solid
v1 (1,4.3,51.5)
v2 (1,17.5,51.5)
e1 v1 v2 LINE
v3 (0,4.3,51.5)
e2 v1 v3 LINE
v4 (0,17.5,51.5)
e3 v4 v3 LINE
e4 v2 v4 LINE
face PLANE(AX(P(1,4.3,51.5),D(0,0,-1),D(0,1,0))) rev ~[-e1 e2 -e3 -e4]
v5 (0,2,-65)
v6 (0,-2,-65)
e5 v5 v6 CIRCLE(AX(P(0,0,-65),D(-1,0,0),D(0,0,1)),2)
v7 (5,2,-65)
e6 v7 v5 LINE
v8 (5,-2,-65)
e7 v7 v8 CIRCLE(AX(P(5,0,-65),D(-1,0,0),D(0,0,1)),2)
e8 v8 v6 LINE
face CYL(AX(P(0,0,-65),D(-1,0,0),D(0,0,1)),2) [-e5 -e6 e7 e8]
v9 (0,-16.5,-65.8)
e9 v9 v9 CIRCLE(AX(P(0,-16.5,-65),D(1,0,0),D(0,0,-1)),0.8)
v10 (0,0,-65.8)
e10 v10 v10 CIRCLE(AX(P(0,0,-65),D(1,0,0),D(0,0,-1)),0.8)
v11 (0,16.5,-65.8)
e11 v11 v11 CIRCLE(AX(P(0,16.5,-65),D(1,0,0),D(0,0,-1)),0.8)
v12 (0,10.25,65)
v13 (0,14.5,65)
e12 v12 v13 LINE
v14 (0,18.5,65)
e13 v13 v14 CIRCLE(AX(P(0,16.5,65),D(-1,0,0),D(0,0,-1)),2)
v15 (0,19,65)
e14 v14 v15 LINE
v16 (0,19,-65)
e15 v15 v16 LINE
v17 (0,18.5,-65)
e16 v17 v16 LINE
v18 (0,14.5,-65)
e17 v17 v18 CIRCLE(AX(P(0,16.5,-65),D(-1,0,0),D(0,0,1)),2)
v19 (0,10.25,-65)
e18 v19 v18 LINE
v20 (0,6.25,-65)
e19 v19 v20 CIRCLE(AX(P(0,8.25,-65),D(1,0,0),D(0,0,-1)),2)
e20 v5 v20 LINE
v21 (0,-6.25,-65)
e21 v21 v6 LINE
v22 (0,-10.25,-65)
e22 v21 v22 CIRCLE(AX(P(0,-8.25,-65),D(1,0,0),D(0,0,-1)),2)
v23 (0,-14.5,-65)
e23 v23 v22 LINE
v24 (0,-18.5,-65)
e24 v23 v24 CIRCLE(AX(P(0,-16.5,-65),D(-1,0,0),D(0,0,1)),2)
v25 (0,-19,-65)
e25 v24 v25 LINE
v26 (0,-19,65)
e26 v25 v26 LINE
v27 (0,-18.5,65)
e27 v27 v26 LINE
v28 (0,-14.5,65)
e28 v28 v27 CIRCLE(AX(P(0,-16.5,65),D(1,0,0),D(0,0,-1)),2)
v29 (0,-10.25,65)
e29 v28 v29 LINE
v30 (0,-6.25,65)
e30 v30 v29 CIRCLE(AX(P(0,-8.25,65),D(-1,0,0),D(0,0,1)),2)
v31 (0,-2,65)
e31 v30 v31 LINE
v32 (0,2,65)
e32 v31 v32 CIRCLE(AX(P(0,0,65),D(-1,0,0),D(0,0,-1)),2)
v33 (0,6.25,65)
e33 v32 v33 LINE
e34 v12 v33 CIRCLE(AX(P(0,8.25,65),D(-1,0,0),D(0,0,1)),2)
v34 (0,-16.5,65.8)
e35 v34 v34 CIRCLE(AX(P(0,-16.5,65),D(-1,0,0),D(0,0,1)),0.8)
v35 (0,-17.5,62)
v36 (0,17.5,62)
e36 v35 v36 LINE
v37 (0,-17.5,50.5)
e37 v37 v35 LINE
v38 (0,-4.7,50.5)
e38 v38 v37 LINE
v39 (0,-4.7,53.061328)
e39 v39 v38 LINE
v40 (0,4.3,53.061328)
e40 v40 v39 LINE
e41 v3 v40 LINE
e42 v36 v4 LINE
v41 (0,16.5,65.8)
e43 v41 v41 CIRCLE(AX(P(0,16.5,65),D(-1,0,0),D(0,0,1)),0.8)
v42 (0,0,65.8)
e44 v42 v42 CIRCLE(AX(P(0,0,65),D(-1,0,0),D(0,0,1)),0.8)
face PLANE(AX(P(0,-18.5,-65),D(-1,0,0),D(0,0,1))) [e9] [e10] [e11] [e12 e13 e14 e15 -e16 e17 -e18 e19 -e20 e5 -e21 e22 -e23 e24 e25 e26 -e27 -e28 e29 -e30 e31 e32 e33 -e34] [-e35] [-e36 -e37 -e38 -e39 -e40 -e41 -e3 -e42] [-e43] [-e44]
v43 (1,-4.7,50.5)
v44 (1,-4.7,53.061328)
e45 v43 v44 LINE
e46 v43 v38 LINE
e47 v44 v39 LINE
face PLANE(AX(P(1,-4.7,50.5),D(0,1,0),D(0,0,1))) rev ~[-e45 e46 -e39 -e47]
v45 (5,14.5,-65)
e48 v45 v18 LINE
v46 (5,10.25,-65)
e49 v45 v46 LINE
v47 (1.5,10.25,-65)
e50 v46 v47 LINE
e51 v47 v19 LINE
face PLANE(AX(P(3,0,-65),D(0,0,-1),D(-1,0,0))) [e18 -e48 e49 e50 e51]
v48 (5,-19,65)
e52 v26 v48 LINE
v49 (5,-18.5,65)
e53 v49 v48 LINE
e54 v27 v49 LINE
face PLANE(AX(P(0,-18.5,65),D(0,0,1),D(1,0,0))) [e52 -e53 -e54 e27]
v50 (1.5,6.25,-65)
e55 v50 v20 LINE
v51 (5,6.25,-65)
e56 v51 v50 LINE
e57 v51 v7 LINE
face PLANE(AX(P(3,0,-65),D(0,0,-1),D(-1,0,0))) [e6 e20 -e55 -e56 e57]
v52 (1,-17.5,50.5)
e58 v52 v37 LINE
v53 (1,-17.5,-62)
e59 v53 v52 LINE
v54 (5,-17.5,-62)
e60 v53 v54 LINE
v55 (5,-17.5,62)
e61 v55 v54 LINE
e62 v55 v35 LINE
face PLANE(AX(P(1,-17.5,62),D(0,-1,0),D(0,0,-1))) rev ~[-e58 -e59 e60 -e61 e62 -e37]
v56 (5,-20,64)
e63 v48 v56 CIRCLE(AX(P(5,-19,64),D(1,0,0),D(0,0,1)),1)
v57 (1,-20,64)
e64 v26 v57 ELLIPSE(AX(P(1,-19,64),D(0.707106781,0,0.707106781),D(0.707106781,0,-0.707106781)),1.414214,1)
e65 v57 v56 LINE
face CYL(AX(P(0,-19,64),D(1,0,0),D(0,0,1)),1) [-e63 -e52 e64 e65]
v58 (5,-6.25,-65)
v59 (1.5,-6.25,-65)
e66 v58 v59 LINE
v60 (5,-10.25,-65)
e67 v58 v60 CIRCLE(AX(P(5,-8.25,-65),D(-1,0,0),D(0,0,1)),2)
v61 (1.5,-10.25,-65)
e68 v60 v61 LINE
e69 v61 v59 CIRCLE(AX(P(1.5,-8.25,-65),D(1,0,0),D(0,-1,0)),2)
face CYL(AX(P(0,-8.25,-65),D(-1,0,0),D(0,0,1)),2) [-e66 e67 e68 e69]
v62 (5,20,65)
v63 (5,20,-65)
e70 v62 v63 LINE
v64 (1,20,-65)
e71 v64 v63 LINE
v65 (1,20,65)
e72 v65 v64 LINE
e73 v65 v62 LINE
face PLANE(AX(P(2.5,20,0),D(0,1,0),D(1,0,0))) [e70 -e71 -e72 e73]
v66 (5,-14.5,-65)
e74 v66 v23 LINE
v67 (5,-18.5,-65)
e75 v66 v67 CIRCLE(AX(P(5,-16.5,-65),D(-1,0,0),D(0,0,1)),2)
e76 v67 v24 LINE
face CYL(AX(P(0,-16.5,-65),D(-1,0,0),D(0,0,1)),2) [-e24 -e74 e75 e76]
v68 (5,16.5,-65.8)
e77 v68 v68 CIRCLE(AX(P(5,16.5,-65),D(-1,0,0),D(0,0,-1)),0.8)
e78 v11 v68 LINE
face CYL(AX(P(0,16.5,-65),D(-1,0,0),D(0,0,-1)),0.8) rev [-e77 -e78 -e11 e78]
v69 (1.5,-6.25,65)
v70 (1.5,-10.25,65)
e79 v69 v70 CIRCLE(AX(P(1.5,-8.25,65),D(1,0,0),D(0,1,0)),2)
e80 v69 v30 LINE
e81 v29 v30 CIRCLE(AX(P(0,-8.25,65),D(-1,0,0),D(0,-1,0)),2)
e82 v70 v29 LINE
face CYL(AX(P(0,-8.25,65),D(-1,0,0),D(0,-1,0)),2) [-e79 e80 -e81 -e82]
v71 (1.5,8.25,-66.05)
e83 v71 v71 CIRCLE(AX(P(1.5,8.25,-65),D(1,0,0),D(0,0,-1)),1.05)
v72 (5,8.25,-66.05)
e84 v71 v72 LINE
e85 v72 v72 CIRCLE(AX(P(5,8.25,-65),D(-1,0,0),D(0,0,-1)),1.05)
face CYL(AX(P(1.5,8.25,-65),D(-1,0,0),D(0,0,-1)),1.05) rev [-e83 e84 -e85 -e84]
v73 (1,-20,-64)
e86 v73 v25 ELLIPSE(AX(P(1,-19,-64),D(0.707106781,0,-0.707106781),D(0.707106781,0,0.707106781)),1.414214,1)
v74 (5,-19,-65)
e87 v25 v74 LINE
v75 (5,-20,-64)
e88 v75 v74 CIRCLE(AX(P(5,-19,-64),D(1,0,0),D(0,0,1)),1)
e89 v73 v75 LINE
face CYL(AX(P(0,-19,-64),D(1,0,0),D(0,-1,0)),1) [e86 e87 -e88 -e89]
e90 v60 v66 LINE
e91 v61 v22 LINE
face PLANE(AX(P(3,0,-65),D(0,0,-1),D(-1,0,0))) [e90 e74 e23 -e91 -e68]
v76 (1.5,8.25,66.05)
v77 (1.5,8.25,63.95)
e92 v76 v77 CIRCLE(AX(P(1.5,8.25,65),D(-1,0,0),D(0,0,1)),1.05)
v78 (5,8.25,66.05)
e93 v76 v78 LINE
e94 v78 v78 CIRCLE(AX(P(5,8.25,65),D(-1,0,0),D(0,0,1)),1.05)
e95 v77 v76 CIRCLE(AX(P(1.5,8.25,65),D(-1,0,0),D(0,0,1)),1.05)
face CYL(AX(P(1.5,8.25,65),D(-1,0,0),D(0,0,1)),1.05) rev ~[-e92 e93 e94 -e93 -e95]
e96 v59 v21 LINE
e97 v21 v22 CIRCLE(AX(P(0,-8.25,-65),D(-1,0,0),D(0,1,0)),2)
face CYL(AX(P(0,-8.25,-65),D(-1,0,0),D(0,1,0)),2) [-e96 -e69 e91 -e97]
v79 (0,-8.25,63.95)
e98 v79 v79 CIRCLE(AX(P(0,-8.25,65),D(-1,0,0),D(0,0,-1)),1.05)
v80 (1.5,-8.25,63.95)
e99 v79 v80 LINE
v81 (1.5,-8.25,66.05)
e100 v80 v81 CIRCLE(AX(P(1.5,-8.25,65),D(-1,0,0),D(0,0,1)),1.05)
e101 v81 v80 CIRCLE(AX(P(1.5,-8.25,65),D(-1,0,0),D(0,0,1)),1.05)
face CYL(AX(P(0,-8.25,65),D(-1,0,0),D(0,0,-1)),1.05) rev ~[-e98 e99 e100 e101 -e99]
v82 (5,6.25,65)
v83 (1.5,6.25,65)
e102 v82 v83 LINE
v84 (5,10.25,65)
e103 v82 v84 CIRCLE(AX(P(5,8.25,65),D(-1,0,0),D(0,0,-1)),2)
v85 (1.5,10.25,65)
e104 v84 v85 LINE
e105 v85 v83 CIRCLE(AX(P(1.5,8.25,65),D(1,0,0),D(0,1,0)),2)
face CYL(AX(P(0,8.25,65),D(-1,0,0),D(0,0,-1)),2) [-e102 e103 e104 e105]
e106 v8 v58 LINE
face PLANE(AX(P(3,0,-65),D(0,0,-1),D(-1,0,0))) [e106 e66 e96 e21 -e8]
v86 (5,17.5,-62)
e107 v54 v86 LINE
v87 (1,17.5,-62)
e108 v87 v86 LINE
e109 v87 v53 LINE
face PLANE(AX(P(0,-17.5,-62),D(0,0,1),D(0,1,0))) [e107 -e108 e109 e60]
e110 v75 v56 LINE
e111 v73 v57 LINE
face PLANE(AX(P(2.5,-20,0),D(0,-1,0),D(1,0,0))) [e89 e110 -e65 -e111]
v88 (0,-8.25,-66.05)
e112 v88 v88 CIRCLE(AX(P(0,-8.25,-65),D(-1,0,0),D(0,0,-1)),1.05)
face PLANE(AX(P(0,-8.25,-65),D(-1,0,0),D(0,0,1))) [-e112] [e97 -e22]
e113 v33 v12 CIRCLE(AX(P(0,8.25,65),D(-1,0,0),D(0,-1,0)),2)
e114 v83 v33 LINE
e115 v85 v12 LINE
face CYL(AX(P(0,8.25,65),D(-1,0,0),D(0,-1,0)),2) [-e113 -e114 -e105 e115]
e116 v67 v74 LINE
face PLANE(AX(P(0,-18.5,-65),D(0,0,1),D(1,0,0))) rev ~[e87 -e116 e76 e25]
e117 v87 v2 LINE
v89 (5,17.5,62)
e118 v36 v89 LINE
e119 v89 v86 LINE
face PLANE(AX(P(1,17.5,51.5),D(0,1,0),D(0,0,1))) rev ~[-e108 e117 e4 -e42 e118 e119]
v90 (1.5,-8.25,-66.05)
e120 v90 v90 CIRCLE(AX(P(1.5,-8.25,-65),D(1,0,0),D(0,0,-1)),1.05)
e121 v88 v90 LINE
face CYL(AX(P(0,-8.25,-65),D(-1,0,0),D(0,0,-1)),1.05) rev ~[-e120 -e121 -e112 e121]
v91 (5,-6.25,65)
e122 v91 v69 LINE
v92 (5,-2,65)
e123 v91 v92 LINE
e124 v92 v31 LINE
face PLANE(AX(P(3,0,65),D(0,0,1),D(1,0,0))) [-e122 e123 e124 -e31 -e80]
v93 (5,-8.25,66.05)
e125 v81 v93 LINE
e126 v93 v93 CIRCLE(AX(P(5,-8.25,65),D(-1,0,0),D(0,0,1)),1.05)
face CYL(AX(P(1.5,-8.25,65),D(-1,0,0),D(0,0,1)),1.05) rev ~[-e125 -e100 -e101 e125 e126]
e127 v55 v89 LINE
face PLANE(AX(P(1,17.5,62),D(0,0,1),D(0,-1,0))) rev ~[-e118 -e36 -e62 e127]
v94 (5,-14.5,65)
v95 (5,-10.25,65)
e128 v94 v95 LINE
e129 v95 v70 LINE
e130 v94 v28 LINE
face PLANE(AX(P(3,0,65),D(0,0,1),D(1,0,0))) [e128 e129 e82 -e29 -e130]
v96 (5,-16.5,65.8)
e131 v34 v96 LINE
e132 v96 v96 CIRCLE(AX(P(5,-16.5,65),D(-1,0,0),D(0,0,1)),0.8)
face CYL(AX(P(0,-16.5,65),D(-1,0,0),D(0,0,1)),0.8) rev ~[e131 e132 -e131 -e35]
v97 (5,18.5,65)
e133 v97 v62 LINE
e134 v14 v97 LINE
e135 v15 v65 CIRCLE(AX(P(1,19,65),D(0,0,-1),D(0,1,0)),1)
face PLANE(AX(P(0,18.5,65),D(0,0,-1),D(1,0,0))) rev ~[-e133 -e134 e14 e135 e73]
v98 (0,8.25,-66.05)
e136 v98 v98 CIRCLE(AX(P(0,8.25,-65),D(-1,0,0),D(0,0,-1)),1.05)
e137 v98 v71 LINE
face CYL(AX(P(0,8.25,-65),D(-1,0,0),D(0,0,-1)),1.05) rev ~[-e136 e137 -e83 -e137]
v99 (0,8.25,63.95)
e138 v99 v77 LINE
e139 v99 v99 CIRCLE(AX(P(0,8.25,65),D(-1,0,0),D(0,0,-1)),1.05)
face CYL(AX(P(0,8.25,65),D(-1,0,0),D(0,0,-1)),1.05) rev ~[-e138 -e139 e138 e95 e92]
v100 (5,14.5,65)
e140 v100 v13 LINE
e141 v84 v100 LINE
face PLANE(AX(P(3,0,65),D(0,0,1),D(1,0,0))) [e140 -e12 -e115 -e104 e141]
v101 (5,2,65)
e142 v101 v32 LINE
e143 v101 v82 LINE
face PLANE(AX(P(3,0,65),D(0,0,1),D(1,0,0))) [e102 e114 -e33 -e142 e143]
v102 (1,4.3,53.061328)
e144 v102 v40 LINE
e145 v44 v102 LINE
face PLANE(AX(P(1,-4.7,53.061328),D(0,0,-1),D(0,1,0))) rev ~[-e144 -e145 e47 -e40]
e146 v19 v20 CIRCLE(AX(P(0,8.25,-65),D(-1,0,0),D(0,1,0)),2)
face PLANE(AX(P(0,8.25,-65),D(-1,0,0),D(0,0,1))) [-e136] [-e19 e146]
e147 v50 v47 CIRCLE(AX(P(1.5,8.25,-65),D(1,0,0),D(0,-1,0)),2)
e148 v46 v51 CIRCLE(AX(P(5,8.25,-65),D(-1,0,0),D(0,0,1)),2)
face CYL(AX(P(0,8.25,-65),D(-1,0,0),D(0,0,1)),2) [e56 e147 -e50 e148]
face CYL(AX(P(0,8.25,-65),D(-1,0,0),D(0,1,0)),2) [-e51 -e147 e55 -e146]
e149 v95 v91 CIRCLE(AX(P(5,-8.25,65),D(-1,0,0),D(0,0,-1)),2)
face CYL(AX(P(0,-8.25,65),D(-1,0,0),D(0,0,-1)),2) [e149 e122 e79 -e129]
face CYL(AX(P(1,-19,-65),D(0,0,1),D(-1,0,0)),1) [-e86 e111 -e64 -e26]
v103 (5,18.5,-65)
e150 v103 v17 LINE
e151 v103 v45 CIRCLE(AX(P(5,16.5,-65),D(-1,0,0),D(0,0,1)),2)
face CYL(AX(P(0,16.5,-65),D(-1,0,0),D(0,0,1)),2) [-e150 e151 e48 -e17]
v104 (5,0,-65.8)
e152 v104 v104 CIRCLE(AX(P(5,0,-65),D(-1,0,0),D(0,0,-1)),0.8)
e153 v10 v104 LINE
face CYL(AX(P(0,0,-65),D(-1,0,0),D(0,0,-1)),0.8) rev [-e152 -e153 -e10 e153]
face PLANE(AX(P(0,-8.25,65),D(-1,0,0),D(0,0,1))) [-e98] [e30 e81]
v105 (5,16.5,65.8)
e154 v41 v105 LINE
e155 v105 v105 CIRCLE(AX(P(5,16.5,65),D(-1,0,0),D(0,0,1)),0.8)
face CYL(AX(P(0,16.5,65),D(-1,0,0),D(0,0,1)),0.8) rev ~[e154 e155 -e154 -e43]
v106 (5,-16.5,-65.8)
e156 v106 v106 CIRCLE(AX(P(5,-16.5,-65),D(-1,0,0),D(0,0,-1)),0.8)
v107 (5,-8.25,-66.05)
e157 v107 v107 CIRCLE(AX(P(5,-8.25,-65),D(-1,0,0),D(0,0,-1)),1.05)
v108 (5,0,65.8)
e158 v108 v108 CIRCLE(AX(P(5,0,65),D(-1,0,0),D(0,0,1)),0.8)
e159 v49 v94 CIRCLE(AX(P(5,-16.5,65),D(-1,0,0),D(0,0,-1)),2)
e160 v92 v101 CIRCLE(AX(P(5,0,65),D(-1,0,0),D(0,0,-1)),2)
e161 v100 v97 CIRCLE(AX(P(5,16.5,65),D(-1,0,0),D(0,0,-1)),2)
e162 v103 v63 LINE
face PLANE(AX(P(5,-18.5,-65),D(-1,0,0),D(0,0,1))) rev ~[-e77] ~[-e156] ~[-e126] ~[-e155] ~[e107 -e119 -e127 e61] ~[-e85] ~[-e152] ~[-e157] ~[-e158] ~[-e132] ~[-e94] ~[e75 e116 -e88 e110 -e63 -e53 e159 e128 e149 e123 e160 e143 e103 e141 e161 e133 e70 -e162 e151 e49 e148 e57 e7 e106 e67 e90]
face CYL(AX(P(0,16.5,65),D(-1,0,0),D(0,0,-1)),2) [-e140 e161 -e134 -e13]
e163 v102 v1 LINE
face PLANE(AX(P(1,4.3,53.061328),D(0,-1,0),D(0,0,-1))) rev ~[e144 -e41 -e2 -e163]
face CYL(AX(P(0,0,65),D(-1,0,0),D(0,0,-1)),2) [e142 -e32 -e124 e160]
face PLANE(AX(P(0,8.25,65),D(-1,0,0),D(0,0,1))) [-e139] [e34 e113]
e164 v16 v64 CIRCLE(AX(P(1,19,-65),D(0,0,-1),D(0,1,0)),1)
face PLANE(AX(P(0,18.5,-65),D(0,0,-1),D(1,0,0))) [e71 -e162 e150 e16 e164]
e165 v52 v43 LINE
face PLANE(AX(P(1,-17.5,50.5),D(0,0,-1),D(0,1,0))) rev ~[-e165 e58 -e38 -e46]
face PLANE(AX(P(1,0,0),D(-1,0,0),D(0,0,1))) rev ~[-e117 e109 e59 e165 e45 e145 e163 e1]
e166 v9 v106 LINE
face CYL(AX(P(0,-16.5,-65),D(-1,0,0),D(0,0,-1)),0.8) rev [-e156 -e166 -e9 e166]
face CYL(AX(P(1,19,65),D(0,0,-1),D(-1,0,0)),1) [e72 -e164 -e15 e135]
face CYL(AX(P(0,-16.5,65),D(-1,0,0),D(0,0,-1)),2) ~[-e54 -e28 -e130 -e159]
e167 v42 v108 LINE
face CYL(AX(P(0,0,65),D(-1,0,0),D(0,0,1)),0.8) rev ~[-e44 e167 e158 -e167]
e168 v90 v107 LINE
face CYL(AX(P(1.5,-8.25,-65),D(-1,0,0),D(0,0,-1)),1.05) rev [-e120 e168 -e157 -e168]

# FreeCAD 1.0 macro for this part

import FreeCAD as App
import Part
import Sketcher

V = App.Vector


def edges_at(feature, points):
    """Names of the edges that pass closest to the given points."""
    edges = feature.Shape.Edges
    near = lambda p: min(range(len(edges)), key=lambda i: edges[i].distToShape(Part.Vertex(*p))[0])
    return sorted({f"Edge{near(p) + 1}" for p in points})

doc = App.newDocument("Part")
body = doc.addObject("PartDesign::Body", "Body")

sketch1 = body.newObject("Sketcher::SketchObject", "Sketch")
sketch1.AttachmentSupport = (doc.getObject("YZ_Plane"), [""])
sketch1.MapMode = "FlatFace"
sketch1.addGeometry(Part.LineSegment(V(18, 63, 0), V(-18, 63, 0)), False)
sketch1.addGeometry(Part.LineSegment(V(-18, 63, 0), V(-18, -63, 0)), False)
sketch1.addGeometry(Part.LineSegment(V(-18, -63, 0), V(18, -63, 0)), False)
sketch1.addGeometry(Part.LineSegment(V(18, -63, 0), V(18, 63, 0)), False)
sketch1.addGeometry(Part.LineSegment(V(-18, -62, 0), V(-18, 62, 0)), False)
sketch1.addGeometry(Part.LineSegment(V(-18, 62, 0), V(18, 62, 0)), False)
sketch1.addGeometry(Part.LineSegment(V(18, 62, 0), V(18, -62, 0)), False)
sketch1.addGeometry(Part.LineSegment(V(18, -62, 0), V(-18, -62, 0)), False)
sketch1.addConstraint(Sketcher.Constraint("Coincident", 0, 2, 1, 1))
sketch1.addConstraint(Sketcher.Constraint("Coincident", 1, 2, 2, 1))
sketch1.addConstraint(Sketcher.Constraint("Coincident", 2, 2, 3, 1))
sketch1.addConstraint(Sketcher.Constraint("Coincident", 3, 2, 0, 1))
sketch1.addConstraint(Sketcher.Constraint("Coincident", 4, 2, 5, 1))
sketch1.addConstraint(Sketcher.Constraint("Coincident", 5, 2, 6, 1))
sketch1.addConstraint(Sketcher.Constraint("Coincident", 6, 2, 7, 1))
sketch1.addConstraint(Sketcher.Constraint("Coincident", 7, 2, 4, 1))
sketch1.addConstraint(Sketcher.Constraint("Horizontal", 0))
sketch1.addConstraint(Sketcher.Constraint("Vertical", 1))
sketch1.addConstraint(Sketcher.Constraint("Horizontal", 2))
sketch1.addConstraint(Sketcher.Constraint("Vertical", 3))
sketch1.addConstraint(Sketcher.Constraint("Vertical", 4))
sketch1.addConstraint(Sketcher.Constraint("Horizontal", 5))
sketch1.addConstraint(Sketcher.Constraint("Vertical", 6))
sketch1.addConstraint(Sketcher.Constraint("Horizontal", 7))
sketch1.addConstraint(Sketcher.Constraint("Symmetric", 0, 2, 2, 2, -1, 1))
sketch1.addConstraint(Sketcher.Constraint("Symmetric", 4, 2, 6, 2, -1, 1))
sketch1.addConstraint(Sketcher.Constraint("DistanceX", 0, 2, 0, 1, 37.0))
sketch1.addConstraint(Sketcher.Constraint("DistanceX", 5, 1, 5, 2, 35.0))
sketch1.addConstraint(Sketcher.Constraint("DistanceY", 1, 2, 1, 1, 126.0))
sketch1.addConstraint(Sketcher.Constraint("DistanceY", 4, 1, 4, 2, 124.0))
pad1 = body.newObject("PartDesign::Pad", "Pad")
pad1.Profile = sketch1
pad1.Length = 6

sketch2 = body.newObject("Sketcher::SketchObject", "Sketch001")
sketch2.AttachmentSupport = (doc.getObject("YZ_Plane"), [""])
sketch2.MapMode = "FlatFace"
sketch2.addGeometry(Part.LineSegment(V(18, -63, 0), V(-18, -63, 0)), False)
sketch2.addGeometry(Part.LineSegment(V(-18, -63, 0), V(-18, 63, 0)), False)
sketch2.addGeometry(Part.LineSegment(V(-18, 63, 0), V(18, 63, 0)), False)
sketch2.addGeometry(Part.LineSegment(V(18, 63, 0), V(18, -63, 0)), False)
sketch2.addConstraint(Sketcher.Constraint("Coincident", 0, 2, 1, 1))
sketch2.addConstraint(Sketcher.Constraint("Coincident", 1, 2, 2, 1))
sketch2.addConstraint(Sketcher.Constraint("Coincident", 2, 2, 3, 1))
sketch2.addConstraint(Sketcher.Constraint("Coincident", 3, 2, 0, 1))
sketch2.addConstraint(Sketcher.Constraint("Horizontal", 0))
sketch2.addConstraint(Sketcher.Constraint("Vertical", 1))
sketch2.addConstraint(Sketcher.Constraint("Horizontal", 2))
sketch2.addConstraint(Sketcher.Constraint("Vertical", 3))
sketch2.addConstraint(Sketcher.Constraint("Symmetric", 0, 2, 2, 2, -1, 1))
sketch2.addConstraint(Sketcher.Constraint("DistanceX", 0, 2, 0, 1, 37.0))
sketch2.addConstraint(Sketcher.Constraint("DistanceY", 1, 1, 1, 2, 126.0))
pad2 = body.newObject("PartDesign::Pad", "Pad001")
pad2.Profile = sketch2
pad2.Length = 1

sketch3 = body.newObject("Sketcher::SketchObject", "Sketch002")
sketch3.AttachmentSupport = (doc.getObject("XY_Plane"), [""])
sketch3.MapMode = "FlatFace"
sketch3.AttachmentOffset = App.Placement(V(0, 0, -63), App.Rotation())
sketch3.addGeometry(Part.LineSegment(V(6, 18, 0), V(6, -18, 0)), False)
sketch3.addGeometry(Part.LineSegment(V(6, -18, 0), V(0, -18, 0)), False)
sketch3.addGeometry(Part.LineSegment(V(0, -18, 0), V(0, 18, 0)), False)
sketch3.addGeometry(Part.LineSegment(V(0, 18, 0), V(6, 18, 0)), False)
sketch3.addConstraint(Sketcher.Constraint("Coincident", 0, 2, 1, 1))
sketch3.addConstraint(Sketcher.Constraint("Coincident", 1, 2, 2, 1))
sketch3.addConstraint(Sketcher.Constraint("Coincident", 2, 2, 3, 1))
sketch3.addConstraint(Sketcher.Constraint("Coincident", 3, 2, 0, 1))
sketch3.addConstraint(Sketcher.Constraint("Vertical", 0))
sketch3.addConstraint(Sketcher.Constraint("Horizontal", 1))
sketch3.addConstraint(Sketcher.Constraint("Vertical", 2))
sketch3.addConstraint(Sketcher.Constraint("Horizontal", 3))
sketch3.addConstraint(Sketcher.Constraint("Symmetric", 1, 2, 2, 2, -1, 1))
sketch3.addConstraint(Sketcher.Constraint("DistanceX", 1, 2, 1, 1, 6.0))
sketch3.addConstraint(Sketcher.Constraint("DistanceY", 0, 2, 0, 1, 37.0))
pad3 = body.newObject("PartDesign::Pad", "Pad002")
pad3.Profile = sketch3
pad3.Length = 2
pad3.Reversed = True

sketch4 = body.newObject("Sketcher::SketchObject", "Sketch003")
sketch4.AttachmentSupport = (doc.getObject("XY_Plane"), [""])
sketch4.MapMode = "FlatFace"
sketch4.AttachmentOffset = App.Placement(V(0, 0, 63), App.Rotation())
sketch4.addGeometry(Part.LineSegment(V(0, 18, 0), V(0, -18, 0)), False)
sketch4.addGeometry(Part.LineSegment(V(0, -18, 0), V(6, -18, 0)), False)
sketch4.addGeometry(Part.LineSegment(V(6, -18, 0), V(6, 18, 0)), False)
sketch4.addGeometry(Part.LineSegment(V(6, 18, 0), V(0, 18, 0)), False)
sketch4.addConstraint(Sketcher.Constraint("Coincident", 0, 2, 1, 1))
sketch4.addConstraint(Sketcher.Constraint("Coincident", 1, 2, 2, 1))
sketch4.addConstraint(Sketcher.Constraint("Coincident", 2, 2, 3, 1))
sketch4.addConstraint(Sketcher.Constraint("Coincident", 3, 2, 0, 1))
sketch4.addConstraint(Sketcher.Constraint("Vertical", 0))
sketch4.addConstraint(Sketcher.Constraint("Horizontal", 1))
sketch4.addConstraint(Sketcher.Constraint("Vertical", 2))
sketch4.addConstraint(Sketcher.Constraint("Horizontal", 3))
sketch4.addConstraint(Sketcher.Constraint("Symmetric", 0, 2, 3, 2, -1, 1))
sketch4.addConstraint(Sketcher.Constraint("DistanceX", 1, 1, 1, 2, 6.0))
sketch4.addConstraint(Sketcher.Constraint("DistanceY", 0, 2, 0, 1, 37.0))
pad4 = body.newObject("PartDesign::Pad", "Pad003")
pad4.Profile = sketch4
pad4.Length = 2

sketch5 = body.newObject("Sketcher::SketchObject", "Sketch004")
sketch5.AttachmentSupport = (doc.getObject("YZ_Plane"), [""])
sketch5.MapMode = "FlatFace"
sketch5.addGeometry(Part.Circle(V(-16.5, -65, 0), V(0, 0, 1), 2), False)
sketch5.addConstraint(Sketcher.Constraint("Diameter", 0, 4.0))
sketch5.addConstraint(Sketcher.Constraint("DistanceY", 0, 3, -1, 1, 65.0))
sketch5.addConstraint(Sketcher.Constraint("DistanceX", 0, 3, -1, 1, 16.5))
pad5 = body.newObject("PartDesign::Pad", "Pad004")
pad5.Profile = sketch5
pad5.Length = 6
doc.recompute()

linearpattern = body.newObject("PartDesign::LinearPattern", "LinearPattern")
linearpattern.Originals = [pad5]
linearpattern.Direction = (doc.getObject("Y_Axis"), [""])
linearpattern.Mode = "offset"
linearpattern.Offset = 8.25
linearpattern.Occurrences = 5
body.Tip = linearpattern
doc.recompute()

mirrored = body.newObject("PartDesign::Mirrored", "Mirrored")
mirrored.Originals = [pad5]
mirrored.MirrorPlane = (doc.getObject("XY_Plane"), [""])
body.Tip = mirrored

sketch6 = body.newObject("Sketcher::SketchObject", "Sketch005")
sketch6.AttachmentSupport = (doc.getObject("YZ_Plane"), [""])
sketch6.MapMode = "FlatFace"
sketch6.addGeometry(Part.Circle(V(-8.2, 65, 0), V(0, 0, 1), 2), False)
sketch6.addConstraint(Sketcher.Constraint("Diameter", 0, 4.0))
sketch6.addConstraint(Sketcher.Constraint("DistanceY", -1, 1, 0, 3, 65.0))
sketch6.addConstraint(Sketcher.Constraint("DistanceX", 0, 3, -1, 1, 8.25))
pad6 = body.newObject("PartDesign::Pad", "Pad005")
pad6.Profile = sketch6
pad6.Length = 6

sketch7 = body.newObject("Sketcher::SketchObject", "Sketch006")
sketch7.AttachmentSupport = (doc.getObject("YZ_Plane"), [""])
sketch7.MapMode = "FlatFace"
sketch7.addGeometry(Part.Circle(V(0, 65, 0), V(0, 0, 1), 2), False)
sketch7.addConstraint(Sketcher.Constraint("PointOnObject", 0, 3, -2))
sketch7.addConstraint(Sketcher.Constraint("Diameter", 0, 4.0))
sketch7.addConstraint(Sketcher.Constraint("DistanceY", -1, 1, 0, 3, 65.0))
pad7 = body.newObject("PartDesign::Pad", "Pad006")
pad7.Profile = sketch7
pad7.Length = 6

sketch8 = body.newObject("Sketcher::SketchObject", "Sketch007")
sketch8.AttachmentSupport = (doc.getObject("YZ_Plane"), [""])
sketch8.MapMode = "FlatFace"
sketch8.addGeometry(Part.Circle(V(8.2, 65, 0), V(0, 0, 1), 2), False)
sketch8.addConstraint(Sketcher.Constraint("Diameter", 0, 4.0))
sketch8.addConstraint(Sketcher.Constraint("DistanceY", -1, 1, 0, 3, 65.0))
sketch8.addConstraint(Sketcher.Constraint("DistanceX", -1, 1, 0, 3, 8.25))
pad8 = body.newObject("PartDesign::Pad", "Pad007")
pad8.Profile = sketch8
pad8.Length = 6

sketch9 = body.newObject("Sketcher::SketchObject", "Sketch008")
sketch9.AttachmentSupport = (doc.getObject("YZ_Plane"), [""])
sketch9.MapMode = "FlatFace"
sketch9.addGeometry(Part.Circle(V(16.5, 65, 0), V(0, 0, 1), 2), False)
sketch9.addConstraint(Sketcher.Constraint("Diameter", 0, 4.0))
sketch9.addConstraint(Sketcher.Constraint("DistanceY", -1, 1, 0, 3, 65.0))
sketch9.addConstraint(Sketcher.Constraint("DistanceX", -1, 1, 0, 3, 16.5))
pad9 = body.newObject("PartDesign::Pad", "Pad008")
pad9.Profile = sketch9
pad9.Length = 6

sketch10 = body.newObject("Sketcher::SketchObject", "Sketch009")
sketch10.AttachmentSupport = (doc.getObject("YZ_Plane"), [""])
sketch10.MapMode = "FlatFace"
sketch10.addGeometry(Part.Circle(V(-16.5, 65, 0), V(0, 0, 1), 0.8), False)
sketch10.addGeometry(Part.Circle(V(0, 65, 0), V(0, 0, 1), 0.8), False)
sketch10.addGeometry(Part.Circle(V(16.5, 65, 0), V(0, 0, 1), 0.8), False)
sketch10.addConstraint(Sketcher.Constraint("Equal", 0, 1))
sketch10.addConstraint(Sketcher.Constraint("Equal", 1, 2))
sketch10.addConstraint(Sketcher.Constraint("Symmetric", 0, 3, 2, 3, -2))
sketch10.addConstraint(Sketcher.Constraint("PointOnObject", 1, 3, -2))
sketch10.addConstraint(Sketcher.Constraint("Horizontal", 0, 3, 1, 3))
sketch10.addConstraint(Sketcher.Constraint("Diameter", 0, 1.6))
sketch10.addConstraint(Sketcher.Constraint("DistanceY", -1, 1, 0, 3, 65.0))
sketch10.addConstraint(Sketcher.Constraint("DistanceX", 0, 3, 2, 3, 33.0))
pocket1 = body.newObject("PartDesign::Pocket", "Pocket")
pocket1.Profile = sketch10
pocket1.Type = "ThroughAll"
pocket1.Reversed = True

sketch11 = body.newObject("Sketcher::SketchObject", "Sketch010")
sketch11.AttachmentSupport = (doc.getObject("YZ_Plane"), [""])
sketch11.MapMode = "FlatFace"
sketch11.addGeometry(Part.Circle(V(-8.2, 65, 0), V(0, 0, 1), 2), False)
sketch11.addGeometry(Part.Circle(V(8.2, 65, 0), V(0, 0, 1), 2), False)
sketch11.addConstraint(Sketcher.Constraint("Equal", 0, 1))
sketch11.addConstraint(Sketcher.Constraint("Symmetric", 0, 3, 1, 3, -2))
sketch11.addConstraint(Sketcher.Constraint("Diameter", 0, 4.0))
sketch11.addConstraint(Sketcher.Constraint("DistanceY", -1, 1, 0, 3, 65.0))
sketch11.addConstraint(Sketcher.Constraint("DistanceX", 0, 3, 1, 3, 16.5))
pocket2 = body.newObject("PartDesign::Pocket", "Pocket001")
pocket2.Profile = sketch11
pocket2.Length = 1.5
pocket2.Reversed = True

sketch12 = body.newObject("Sketcher::SketchObject", "Sketch011")
sketch12.AttachmentSupport = (doc.getObject("YZ_Plane"), [""])
sketch12.MapMode = "FlatFace"
sketch12.AttachmentOffset = App.Placement(V(0, 0, 1.5), App.Rotation())
sketch12.addGeometry(Part.Circle(V(-8.2, 65, 0), V(0, 0, 1), 1.1), False)
sketch12.addGeometry(Part.Circle(V(8.2, 65, 0), V(0, 0, 1), 1.1), False)
sketch12.addConstraint(Sketcher.Constraint("Equal", 0, 1))
sketch12.addConstraint(Sketcher.Constraint("Symmetric", 0, 3, 1, 3, -2))
sketch12.addConstraint(Sketcher.Constraint("Diameter", 0, 2.1))
sketch12.addConstraint(Sketcher.Constraint("DistanceY", -1, 1, 0, 3, 65.0))
sketch12.addConstraint(Sketcher.Constraint("DistanceX", 0, 3, 1, 3, 16.5))
pocket3 = body.newObject("PartDesign::Pocket", "Pocket002")
pocket3.Profile = sketch12
pocket3.Type = "ThroughAll"
pocket3.Reversed = True
doc.recompute()

mirrored2 = body.newObject("PartDesign::Mirrored", "Mirrored001")
mirrored2.Originals = [pocket1, pocket2, pocket3]
mirrored2.MirrorPlane = (doc.getObject("XY_Plane"), [""])
body.Tip = mirrored2

sketch13 = body.newObject("Sketcher::SketchObject", "Sketch012")
sketch13.AttachmentSupport = (doc.getObject("YZ_Plane"), [""])
sketch13.MapMode = "FlatFace"
sketch13.AttachmentOffset = App.Placement(V(0, 0, 1), App.Rotation())
sketch13.addGeometry(Part.LineSegment(V(17, 53.6, 0), V(17, 61.5, 0)), False)
sketch13.addGeometry(Part.LineSegment(V(17, 61.5, 0), V(-17, 61.5, 0)), False)
sketch13.addGeometry(Part.LineSegment(V(-17, 61.5, 0), V(-17, 51, 0)), False)
sketch13.addGeometry(Part.LineSegment(V(-17, 51, 0), V(-5.2, 51, 0)), False)
sketch13.addGeometry(Part.LineSegment(V(-5.2, 51, 0), V(-5.2, 53.6, 0)), False)
sketch13.addGeometry(Part.LineSegment(V(-5.2, 53.6, 0), V(17, 53.6, 0)), False)
sketch13.addConstraint(Sketcher.Constraint("Coincident", 0, 2, 1, 1))
sketch13.addConstraint(Sketcher.Constraint("Coincident", 1, 2, 2, 1))
sketch13.addConstraint(Sketcher.Constraint("Coincident", 2, 2, 3, 1))
sketch13.addConstraint(Sketcher.Constraint("Coincident", 3, 2, 4, 1))
sketch13.addConstraint(Sketcher.Constraint("Coincident", 4, 2, 5, 1))
sketch13.addConstraint(Sketcher.Constraint("Coincident", 5, 2, 0, 1))
sketch13.addConstraint(Sketcher.Constraint("Vertical", 0))
sketch13.addConstraint(Sketcher.Constraint("Horizontal", 1))
sketch13.addConstraint(Sketcher.Constraint("Vertical", 2))
sketch13.addConstraint(Sketcher.Constraint("Horizontal", 3))
sketch13.addConstraint(Sketcher.Constraint("Vertical", 4))
sketch13.addConstraint(Sketcher.Constraint("Horizontal", 5))
sketch13.addConstraint(Sketcher.Constraint("DistanceX", 1, 2, 1, 1, 34.0))
sketch13.addConstraint(Sketcher.Constraint("DistanceX", 3, 1, 3, 2, 11.8))
sketch13.addConstraint(Sketcher.Constraint("DistanceY", 2, 2, 2, 1, 10.5))
sketch13.addConstraint(Sketcher.Constraint("DistanceX", -1, 1, 0, 2, 17.0))
sketch13.addConstraint(Sketcher.Constraint("DistanceY", -1, 1, 2, 2, 51.0))
sketch13.addConstraint(Sketcher.Constraint("DistanceY", 0, 1, 0, 2, 7.938672))
pocket4 = body.newObject("PartDesign::Pocket", "Pocket003")
pocket4.Profile = sketch13
pocket4.Length = 10

sketch14 = body.newObject("Sketcher::SketchObject", "Sketch013")
sketch14.AttachmentSupport = (doc.getObject("YZ_Plane"), [""])
sketch14.MapMode = "FlatFace"
sketch14.AttachmentOffset = App.Placement(V(0, 0, 6), App.Rotation())
sketch14.addGeometry(Part.LineSegment(V(42, 95, 0), V(-36, 95, 0)), False)
sketch14.addGeometry(Part.LineSegment(V(-36, 95, 0), V(-36, -90, 0)), False)
sketch14.addGeometry(Part.LineSegment(V(-36, -90, 0), V(42, -90, 0)), False)
sketch14.addGeometry(Part.LineSegment(V(42, -90, 0), V(42, 95, 0)), False)
sketch14.addConstraint(Sketcher.Constraint("Coincident", 0, 2, 1, 1))
sketch14.addConstraint(Sketcher.Constraint("Coincident", 1, 2, 2, 1))
sketch14.addConstraint(Sketcher.Constraint("Coincident", 2, 2, 3, 1))
sketch14.addConstraint(Sketcher.Constraint("Coincident", 3, 2, 0, 1))
sketch14.addConstraint(Sketcher.Constraint("Horizontal", 0))
sketch14.addConstraint(Sketcher.Constraint("Vertical", 1))
sketch14.addConstraint(Sketcher.Constraint("Horizontal", 2))
sketch14.addConstraint(Sketcher.Constraint("Vertical", 3))
sketch14.addConstraint(Sketcher.Constraint("DistanceY", 1, 2, 1, 1, 185.055301))
sketch14.addConstraint(Sketcher.Constraint("DistanceX", 0, 2, 0, 1, 78.031908))
sketch14.addConstraint(Sketcher.Constraint("DistanceX", 0, 2, -1, 1, 36.278158))
sketch14.addConstraint(Sketcher.Constraint("DistanceY", -1, 1, 0, 2, 94.980027))
pocket5 = body.newObject("PartDesign::Pocket", "Pocket004")
pocket5.Profile = sketch14
pocket5.Length = 1

sketch15 = body.newObject("Sketcher::SketchObject", "Sketch014")
sketch15.AttachmentSupport = (doc.getObject("XZ_Plane"), [""])
sketch15.MapMode = "FlatFace"
sketch15.AttachmentOffset = App.Placement(V(0, 0, -18.5), App.Rotation())
sketch15.addGeometry(Part.LineSegment(V(0, -65, 0), V(0, 65, 0)), False)
sketch15.addGeometry(Part.LineSegment(V(0, 65, 0), V(5, 65, 0)), False)
sketch15.addGeometry(Part.LineSegment(V(5, 65, 0), V(5, -65, 0)), False)
sketch15.addGeometry(Part.LineSegment(V(5, -65, 0), V(0, -65, 0)), False)
sketch15.addConstraint(Sketcher.Constraint("Coincident", 0, 2, 1, 1))
sketch15.addConstraint(Sketcher.Constraint("Coincident", 1, 2, 2, 1))
sketch15.addConstraint(Sketcher.Constraint("Coincident", 2, 2, 3, 1))
sketch15.addConstraint(Sketcher.Constraint("Coincident", 3, 2, 0, 1))
sketch15.addConstraint(Sketcher.Constraint("Vertical", 0))
sketch15.addConstraint(Sketcher.Constraint("Horizontal", 1))
sketch15.addConstraint(Sketcher.Constraint("Vertical", 2))
sketch15.addConstraint(Sketcher.Constraint("Horizontal", 3))
sketch15.addConstraint(Sketcher.Constraint("Symmetric", 0, 2, 3, 2, -1, 1))
sketch15.addConstraint(Sketcher.Constraint("DistanceX", 1, 1, 1, 2, 5.0))
sketch15.addConstraint(Sketcher.Constraint("DistanceY", 0, 1, 0, 2, 130.0))
pad10 = body.newObject("PartDesign::Pad", "Pad009")
pad10.Profile = sketch15
pad10.Length = 1.5
pad10.Reversed = True

sketch16 = body.newObject("Sketcher::SketchObject", "Sketch015")
sketch16.AttachmentSupport = (doc.getObject("XZ_Plane"), [""])
sketch16.MapMode = "FlatFace"
sketch16.AttachmentOffset = App.Placement(V(0, 0, 18.5), App.Rotation())
sketch16.addGeometry(Part.LineSegment(V(0, 65, 0), V(0, -65, 0)), False)
sketch16.addGeometry(Part.LineSegment(V(0, -65, 0), V(5, -65, 0)), False)
sketch16.addGeometry(Part.LineSegment(V(5, -65, 0), V(5, 65, 0)), False)
sketch16.addGeometry(Part.LineSegment(V(5, 65, 0), V(0, 65, 0)), False)
sketch16.addConstraint(Sketcher.Constraint("Coincident", 0, 2, 1, 1))
sketch16.addConstraint(Sketcher.Constraint("Coincident", 1, 2, 2, 1))
sketch16.addConstraint(Sketcher.Constraint("Coincident", 2, 2, 3, 1))
sketch16.addConstraint(Sketcher.Constraint("Coincident", 3, 2, 0, 1))
sketch16.addConstraint(Sketcher.Constraint("Vertical", 0))
sketch16.addConstraint(Sketcher.Constraint("Horizontal", 1))
sketch16.addConstraint(Sketcher.Constraint("Vertical", 2))
sketch16.addConstraint(Sketcher.Constraint("Horizontal", 3))
sketch16.addConstraint(Sketcher.Constraint("Symmetric", 0, 2, 3, 2, -1, 1))
sketch16.addConstraint(Sketcher.Constraint("DistanceX", 1, 1, 1, 2, 5.0))
sketch16.addConstraint(Sketcher.Constraint("DistanceY", 0, 2, 0, 1, 130.0))
pad11 = body.newObject("PartDesign::Pad", "Pad010")
pad11.Profile = sketch16
pad11.Length = 1.5

sketch17 = body.newObject("Sketcher::SketchObject", "Sketch016")
sketch17.AttachmentSupport = (doc.getObject("YZ_Plane"), [""])
sketch17.MapMode = "FlatFace"
sketch17.addGeometry(Part.LineSegment(V(17, 52, 0), V(5, 52, 0)), False)
sketch17.addGeometry(Part.LineSegment(V(5, 52, 0), V(5, 62, 0)), False)
sketch17.addGeometry(Part.LineSegment(V(5, 62, 0), V(17, 62, 0)), False)
sketch17.addGeometry(Part.LineSegment(V(17, 62, 0), V(17, 52, 0)), False)
sketch17.addConstraint(Sketcher.Constraint("Coincident", 0, 2, 1, 1))
sketch17.addConstraint(Sketcher.Constraint("Coincident", 1, 2, 2, 1))
sketch17.addConstraint(Sketcher.Constraint("Coincident", 2, 2, 3, 1))
sketch17.addConstraint(Sketcher.Constraint("Coincident", 3, 2, 0, 1))
sketch17.addConstraint(Sketcher.Constraint("Horizontal", 0))
sketch17.addConstraint(Sketcher.Constraint("Vertical", 1))
sketch17.addConstraint(Sketcher.Constraint("Horizontal", 2))
sketch17.addConstraint(Sketcher.Constraint("Vertical", 3))
sketch17.addConstraint(Sketcher.Constraint("DistanceX", 0, 2, 0, 1, 12.2))
sketch17.addConstraint(Sketcher.Constraint("DistanceY", 1, 1, 1, 2, 9.5))
sketch17.addConstraint(Sketcher.Constraint("DistanceY", -1, 1, 0, 2, 52.0))
sketch17.addConstraint(Sketcher.Constraint("DistanceX", -1, 1, 2, 2, 17.0))
pocket6 = body.newObject("PartDesign::Pocket", "Pocket005")
pocket6.Profile = sketch17
pocket6.Length = 10
pocket6.Reversed = True
doc.recompute()

fillet = body.newObject("PartDesign::Fillet", "Fillet")
fillet.Base = (pocket6, edges_at(pocket6, [
    (0, 20, 0),
    (2.5, -20, -65),
    (2.5, -20, 65),
    (0, -20, 0),
]))
fillet.Radius = 1

sketch18 = body.newObject("Sketcher::SketchObject", "Sketch017")
sketch18.AttachmentSupport = (doc.getObject("YZ_Plane"), [""])
sketch18.MapMode = "FlatFace"
sketch18.AttachmentOffset = App.Placement(V(0, 0, 1), App.Rotation())
sketch18.addGeometry(Part.LineSegment(V(17.5, 62, 0), V(-17.5, 62, 0)), False)
sketch18.addGeometry(Part.LineSegment(V(-17.5, 62, 0), V(-17.5, 50.5, 0)), False)
sketch18.addGeometry(Part.LineSegment(V(-17.5, 50.5, 0), V(-4.7, 50.5, 0)), False)
sketch18.addGeometry(Part.LineSegment(V(-4.7, 50.5, 0), V(-4.7, 53.1, 0)), False)
sketch18.addGeometry(Part.LineSegment(V(-4.7, 53.1, 0), V(4.3, 53.1, 0)), False)
sketch18.addGeometry(Part.LineSegment(V(4.3, 53.1, 0), V(4.3, 51.5, 0)), False)
sketch18.addGeometry(Part.LineSegment(V(4.3, 51.5, 0), V(17.5, 51.5, 0)), False)
sketch18.addGeometry(Part.LineSegment(V(17.5, 51.5, 0), V(17.5, 62, 0)), False)
sketch18.addGeometry(Part.LineSegment(V(-17, 51, 0), V(-17, 61.5, 0)), False)
sketch18.addGeometry(Part.LineSegment(V(-17, 61.5, 0), V(17, 61.5, 0)), False)
sketch18.addGeometry(Part.LineSegment(V(17, 61.5, 0), V(17, 52, 0)), False)
sketch18.addGeometry(Part.LineSegment(V(17, 52, 0), V(4.8, 52, 0)), False)
sketch18.addGeometry(Part.LineSegment(V(4.8, 52, 0), V(4.8, 53.6, 0)), False)
sketch18.addGeometry(Part.LineSegment(V(4.8, 53.6, 0), V(-5.2, 53.6, 0)), False)
sketch18.addGeometry(Part.LineSegment(V(-5.2, 53.6, 0), V(-5.2, 51, 0)), False)
sketch18.addGeometry(Part.LineSegment(V(-5.2, 51, 0), V(-17, 51, 0)), False)
sketch18.addConstraint(Sketcher.Constraint("Coincident", 0, 2, 1, 1))
sketch18.addConstraint(Sketcher.Constraint("Coincident", 1, 2, 2, 1))
sketch18.addConstraint(Sketcher.Constraint("Coincident", 2, 2, 3, 1))
sketch18.addConstraint(Sketcher.Constraint("Coincident", 3, 2, 4, 1))
sketch18.addConstraint(Sketcher.Constraint("Coincident", 4, 2, 5, 1))
sketch18.addConstraint(Sketcher.Constraint("Coincident", 5, 2, 6, 1))
sketch18.addConstraint(Sketcher.Constraint("Coincident", 6, 2, 7, 1))
sketch18.addConstraint(Sketcher.Constraint("Coincident", 7, 2, 0, 1))
sketch18.addConstraint(Sketcher.Constraint("Coincident", 8, 2, 9, 1))
sketch18.addConstraint(Sketcher.Constraint("Coincident", 9, 2, 10, 1))
sketch18.addConstraint(Sketcher.Constraint("Coincident", 10, 2, 11, 1))
sketch18.addConstraint(Sketcher.Constraint("Coincident", 11, 2, 12, 1))
sketch18.addConstraint(Sketcher.Constraint("Coincident", 12, 2, 13, 1))
sketch18.addConstraint(Sketcher.Constraint("Coincident", 13, 2, 14, 1))
sketch18.addConstraint(Sketcher.Constraint("Coincident", 14, 2, 15, 1))
sketch18.addConstraint(Sketcher.Constraint("Coincident", 15, 2, 8, 1))
sketch18.addConstraint(Sketcher.Constraint("Horizontal", 0))
sketch18.addConstraint(Sketcher.Constraint("Vertical", 1))
sketch18.addConstraint(Sketcher.Constraint("Horizontal", 2))
sketch18.addConstraint(Sketcher.Constraint("Vertical", 3))
sketch18.addConstraint(Sketcher.Constraint("Horizontal", 4))
sketch18.addConstraint(Sketcher.Constraint("Vertical", 5))
sketch18.addConstraint(Sketcher.Constraint("Horizontal", 6))
sketch18.addConstraint(Sketcher.Constraint("Vertical", 7))
sketch18.addConstraint(Sketcher.Constraint("Vertical", 8))
sketch18.addConstraint(Sketcher.Constraint("Horizontal", 9))
sketch18.addConstraint(Sketcher.Constraint("Vertical", 10))
sketch18.addConstraint(Sketcher.Constraint("Horizontal", 11))
sketch18.addConstraint(Sketcher.Constraint("Vertical", 12))
sketch18.addConstraint(Sketcher.Constraint("Horizontal", 13))
sketch18.addConstraint(Sketcher.Constraint("Vertical", 14))
sketch18.addConstraint(Sketcher.Constraint("Horizontal", 15))
sketch18.addConstraint(Sketcher.Constraint("Equal", 7, 8))
sketch18.addConstraint(Sketcher.Constraint("Equal", 5, 12))
sketch18.addConstraint(Sketcher.Constraint("Equal", 3, 14))
sketch18.addConstraint(Sketcher.Constraint("DistanceX", 0, 2, 0, 1, 35.0))
sketch18.addConstraint(Sketcher.Constraint("DistanceX", 4, 1, 4, 2, 9.0))
sketch18.addConstraint(Sketcher.Constraint("DistanceX", 9, 1, 9, 2, 34.0))
sketch18.addConstraint(Sketcher.Constraint("DistanceX", 13, 2, 13, 1, 10.0))
sketch18.addConstraint(Sketcher.Constraint("DistanceX", 2, 1, 2, 2, 12.8))
sketch18.addConstraint(Sketcher.Constraint("DistanceX", 11, 2, 11, 1, 12.2))
sketch18.addConstraint(Sketcher.Constraint("DistanceY", 1, 2, 1, 1, 11.5))
sketch18.addConstraint(Sketcher.Constraint("DistanceY", 7, 1, 7, 2, 10.5))
sketch18.addConstraint(Sketcher.Constraint("DistanceY", -1, 1, 0, 2, 62.0))
sketch18.addConstraint(Sketcher.Constraint("DistanceX", 8, 2, -1, 1, 17.0))
sketch18.addConstraint(Sketcher.Constraint("DistanceY", -1, 1, 10, 2, 52.0))
sketch18.addConstraint(Sketcher.Constraint("DistanceX", 0, 2, -1, 1, 17.5))
sketch18.addConstraint(Sketcher.Constraint("DistanceY", 3, 1, 3, 2, 2.561328))
pocket7 = body.newObject("PartDesign::Pocket", "Pocket006")
pocket7.Profile = sketch18
pocket7.Length = 10

sketch19 = body.newObject("Sketcher::SketchObject", "Sketch018")
sketch19.AttachmentSupport = (doc.getObject("YZ_Plane"), [""])
sketch19.MapMode = "FlatFace"
sketch19.addGeometry(Part.Circle(V(8.2, 65, 0), V(0, 0, 1), 2), False)
sketch19.addGeometry(Part.Circle(V(8.2, 65, 0), V(0, 0, 1), 1.1), False)
sketch19.addGeometry(Part.Circle(V(-8.2, 65, 0), V(0, 0, 1), 2), False)
sketch19.addGeometry(Part.Circle(V(-8.2, 65, 0), V(0, 0, 1), 1.1), False)
sketch19.addGeometry(Part.Circle(V(-8.2, -65, 0), V(0, 0, 1), 2), False)
sketch19.addGeometry(Part.Circle(V(-8.2, -65, 0), V(0, 0, 1), 1.1), False)
sketch19.addGeometry(Part.Circle(V(8.2, -65, 0), V(0, 0, 1), 2), False)
sketch19.addGeometry(Part.Circle(V(8.2, -65, 0), V(0, 0, 1), 1.1), False)
sketch19.addConstraint(Sketcher.Constraint("Coincident", 1, 3, 0, 3))
sketch19.addConstraint(Sketcher.Constraint("Coincident", 3, 3, 2, 3))
sketch19.addConstraint(Sketcher.Constraint("Coincident", 5, 3, 4, 3))
sketch19.addConstraint(Sketcher.Constraint("Coincident", 7, 3, 6, 3))
sketch19.addConstraint(Sketcher.Constraint("Equal", 0, 2))
sketch19.addConstraint(Sketcher.Constraint("Equal", 1, 3))
sketch19.addConstraint(Sketcher.Constraint("Equal", 2, 4))
sketch19.addConstraint(Sketcher.Constraint("Equal", 3, 5))
sketch19.addConstraint(Sketcher.Constraint("Equal", 4, 6))
sketch19.addConstraint(Sketcher.Constraint("Equal", 5, 7))
sketch19.addConstraint(Sketcher.Constraint("Symmetric", 0, 3, 4, 3, -1, 1))
sketch19.addConstraint(Sketcher.Constraint("Symmetric", 2, 3, 6, 3, -1, 1))
sketch19.addConstraint(Sketcher.Constraint("Symmetric", 0, 3, 2, 3, -2))
sketch19.addConstraint(Sketcher.Constraint("Diameter", 0, 4.0))
sketch19.addConstraint(Sketcher.Constraint("Diameter", 1, 2.1))
sketch19.addConstraint(Sketcher.Constraint("DistanceY", -1, 1, 0, 3, 65.0))
sketch19.addConstraint(Sketcher.Constraint("DistanceX", 2, 3, 0, 3, 16.5))
pad12 = body.newObject("PartDesign::Pad", "Pad011")
pad12.Profile = sketch19
pad12.Length = 1.5

doc.recompute()
